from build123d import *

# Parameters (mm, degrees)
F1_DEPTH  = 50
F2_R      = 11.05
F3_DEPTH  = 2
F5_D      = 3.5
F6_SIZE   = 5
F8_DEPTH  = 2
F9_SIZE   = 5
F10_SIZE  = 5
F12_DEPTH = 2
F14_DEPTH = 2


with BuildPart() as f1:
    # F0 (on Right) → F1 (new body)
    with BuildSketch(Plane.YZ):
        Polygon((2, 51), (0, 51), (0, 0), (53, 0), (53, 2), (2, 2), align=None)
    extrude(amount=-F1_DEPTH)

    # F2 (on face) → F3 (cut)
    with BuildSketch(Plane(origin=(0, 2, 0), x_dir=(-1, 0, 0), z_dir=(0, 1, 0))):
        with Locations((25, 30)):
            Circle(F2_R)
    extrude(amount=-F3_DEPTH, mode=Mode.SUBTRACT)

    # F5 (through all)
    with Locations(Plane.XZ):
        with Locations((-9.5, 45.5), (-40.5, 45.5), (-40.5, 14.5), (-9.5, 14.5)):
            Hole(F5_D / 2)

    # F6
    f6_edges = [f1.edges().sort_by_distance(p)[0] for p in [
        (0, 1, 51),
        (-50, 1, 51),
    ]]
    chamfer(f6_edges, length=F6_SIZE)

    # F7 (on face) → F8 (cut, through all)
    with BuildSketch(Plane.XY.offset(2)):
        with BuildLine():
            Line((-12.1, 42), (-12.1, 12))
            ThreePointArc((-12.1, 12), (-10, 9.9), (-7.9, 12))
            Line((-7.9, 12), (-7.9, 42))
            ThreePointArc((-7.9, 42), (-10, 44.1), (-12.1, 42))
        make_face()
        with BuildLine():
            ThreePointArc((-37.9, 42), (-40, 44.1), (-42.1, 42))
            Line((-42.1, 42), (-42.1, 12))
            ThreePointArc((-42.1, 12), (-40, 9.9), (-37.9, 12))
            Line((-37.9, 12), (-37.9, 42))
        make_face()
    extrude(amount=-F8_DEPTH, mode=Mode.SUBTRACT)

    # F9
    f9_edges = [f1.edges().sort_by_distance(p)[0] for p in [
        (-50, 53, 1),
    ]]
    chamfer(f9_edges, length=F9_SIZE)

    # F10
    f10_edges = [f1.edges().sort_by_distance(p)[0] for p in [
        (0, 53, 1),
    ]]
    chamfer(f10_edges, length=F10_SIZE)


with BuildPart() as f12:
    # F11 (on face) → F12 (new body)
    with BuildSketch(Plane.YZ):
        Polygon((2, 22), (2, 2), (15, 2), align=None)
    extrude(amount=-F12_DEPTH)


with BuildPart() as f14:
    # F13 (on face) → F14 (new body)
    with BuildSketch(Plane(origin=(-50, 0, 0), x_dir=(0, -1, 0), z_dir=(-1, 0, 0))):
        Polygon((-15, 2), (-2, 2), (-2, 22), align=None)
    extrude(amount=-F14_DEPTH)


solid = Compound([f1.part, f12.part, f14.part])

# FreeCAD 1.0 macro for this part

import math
import FreeCAD as App
import Part
import Sketcher


def edges_at(feature, points):
    """Names of the edges that pass closest to the given points."""
    edges = feature.Shape.Edges
    near = lambda p: min(range(len(edges)), key=lambda i: edges[i].distToShape(Part.Vertex(*p))[0])
    return sorted({f"Edge{near(p) + 1}" for p in points})

doc = App.newDocument("Part")
body = doc.addObject("PartDesign::Body", "Body")

sketch1 = body.newObject("Sketcher::SketchObject", "Sketch")
sketch1.AttachmentSupport = (doc.getObject("YZ_Plane"), [""])
sketch1.MapMode = "FlatFace"
sketch1.addGeometry(Part.LineSegment(App.Vector(2, 51, 0), App.Vector(0, 51, 0)), False)
sketch1.addGeometry(Part.LineSegment(App.Vector(0, 51, 0), App.Vector(0, 0, 0)), False)
sketch1.addGeometry(Part.LineSegment(App.Vector(0, 0, 0), App.Vector(53, 0, 0)), False)
sketch1.addGeometry(Part.LineSegment(App.Vector(53, 0, 0), App.Vector(53, 2, 0)), False)
sketch1.addGeometry(Part.LineSegment(App.Vector(53, 2, 0), App.Vector(2, 2, 0)), False)
sketch1.addGeometry(Part.LineSegment(App.Vector(2, 2, 0), App.Vector(2, 51, 0)), False)
sketch1.addConstraint(Sketcher.Constraint("Coincident", 0, 2, 1, 1))
sketch1.addConstraint(Sketcher.Constraint("Coincident", 1, 2, 2, 1))
sketch1.addConstraint(Sketcher.Constraint("Coincident", 2, 2, 3, 1))
sketch1.addConstraint(Sketcher.Constraint("Coincident", 3, 2, 4, 1))
sketch1.addConstraint(Sketcher.Constraint("Coincident", 4, 2, 5, 1))
sketch1.addConstraint(Sketcher.Constraint("Coincident", 5, 2, 0, 1))
sketch1.addConstraint(Sketcher.Constraint("Horizontal", 0))
sketch1.addConstraint(Sketcher.Constraint("Vertical", 1))
sketch1.addConstraint(Sketcher.Constraint("Horizontal", 2))
sketch1.addConstraint(Sketcher.Constraint("Vertical", 3))
sketch1.addConstraint(Sketcher.Constraint("Horizontal", 4))
sketch1.addConstraint(Sketcher.Constraint("Vertical", 5))
sketch1.addConstraint(Sketcher.Constraint("Coincident", 1, 2, -1, 1))
sketch1.addConstraint(Sketcher.Constraint("Equal", 4, 1))
sketch1.addConstraint(Sketcher.Constraint("Equal", 0, 3))
sketch1.addConstraint(Sketcher.Constraint("DistanceX", 0, 2, 0, 1, 2.0))
sketch1.addConstraint(Sketcher.Constraint("DistanceX", 2, 1, 2, 2, 53.0))
pad1 = body.newObject("PartDesign::Pad", "Pad")
pad1.Profile = sketch1
pad1.Length = 50
pad1.Reversed = True

sketch2 = body.newObject("Sketcher::SketchObject", "Sketch001")
sketch2.AttachmentSupport = (doc.getObject("XZ_Plane"), [""])
sketch2.MapMode = "FlatFace"
sketch2.AttachmentOffset = App.Placement(App.Vector(0, 0, -2), App.Rotation())
sketch2.addGeometry(Part.Circle(App.Vector(-25, 30, 0), App.Vector(0, 0, 1), 11), False)
sketch2.addConstraint(Sketcher.Constraint("Diameter", 0, 22.1))
sketch2.addConstraint(Sketcher.Constraint("DistanceX", 0, 3, -1, 1, 25.0))
sketch2.addConstraint(Sketcher.Constraint("DistanceY", -1, 1, 0, 3, 30.0))
pocket1 = body.newObject("PartDesign::Pocket", "Pocket")
pocket1.Profile = sketch2
pocket1.Length = 2
pocket1.Reversed = True

sketch3 = body.newObject("Sketcher::SketchObject", "Sketch002")
sketch3.AttachmentSupport = (doc.getObject("XZ_Plane"), [""])
sketch3.MapMode = "FlatFace"
sketch3.addGeometry(Part.Circle(App.Vector(-9.5, 45.5, 0), App.Vector(0, 0, 1), 1.8), False)
sketch3.addGeometry(Part.Circle(App.Vector(-40.5, 45.5, 0), App.Vector(0, 0, 1), 1.8), False)
sketch3.addGeometry(Part.Circle(App.Vector(-40.5, 14.5, 0), App.Vector(0, 0, 1), 1.8), False)
sketch3.addGeometry(Part.Circle(App.Vector(-9.5, 14.5, 0), App.Vector(0, 0, 1), 1.8), False)
sketch3.addConstraint(Sketcher.Constraint("Equal", 0, 1))
sketch3.addConstraint(Sketcher.Constraint("Equal", 1, 2))
sketch3.addConstraint(Sketcher.Constraint("Equal", 2, 3))
sketch3.addConstraint(Sketcher.Constraint("Horizontal", 0, 3, 1, 3))
sketch3.addConstraint(Sketcher.Constraint("Horizontal", 2, 3, 3, 3))
sketch3.addConstraint(Sketcher.Constraint("Vertical", 1, 3, 2, 3))
sketch3.addConstraint(Sketcher.Constraint("Vertical", 0, 3, 3, 3))
sketch3.addConstraint(Sketcher.Constraint("Diameter", 0, 3.5))
sketch3.addConstraint(Sketcher.Constraint("DistanceX", 1, 3, 0, 3, 31.0))
sketch3.addConstraint(Sketcher.Constraint("DistanceY", 2, 3, 1, 3, 31.0))
sketch3.addConstraint(Sketcher.Constraint("DistanceX", 0, 3, -1, 1, 9.5))
sketch3.addConstraint(Sketcher.Constraint("DistanceY", -1, 1, 0, 3, 45.5))
doc.recompute()
hole = body.newObject("PartDesign::Hole", "Hole")
hole.Profile = sketch3
hole.ThreadType = "None"
hole.Diameter = 3.5
hole.DepthType = "ThroughAll"
doc.recompute()

chamfer = body.newObject("PartDesign::Chamfer", "Chamfer")
chamfer.Base = (hole, edges_at(hole, [(0, 1, 51), (-50, 1, 51)]))
chamfer.Size = 5

sketch4 = body.newObject("Sketcher::SketchObject", "Sketch003")
sketch4.AttachmentSupport = (doc.getObject("XY_Plane"), [""])
sketch4.MapMode = "FlatFace"
sketch4.AttachmentOffset = App.Placement(App.Vector(0, 0, 2), App.Rotation())
sketch4.addGeometry(Part.LineSegment(App.Vector(-12.1, 42, 0), App.Vector(-12.1, 12, 0)), False)
sketch4.addGeometry(Part.ArcOfCircle(Part.Circle(App.Vector(-10, 12, 0), App.Vector(0, 0, 1), 2.1), math.radians(180), math.radians(360)), False)
sketch4.addGeometry(Part.LineSegment(App.Vector(-7.9, 12, 0), App.Vector(-7.9, 42, 0)), False)
sketch4.addGeometry(Part.ArcOfCircle(Part.Circle(App.Vector(-10, 42, 0), App.Vector(0, 0, 1), 2.1), math.radians(0), math.radians(180)), False)
sketch4.addGeometry(Part.ArcOfCircle(Part.Circle(App.Vector(-40, 42, 0), App.Vector(0, 0, 1), 2.1), math.radians(0), math.radians(180)), False)
sketch4.addGeometry(Part.LineSegment(App.Vector(-42.1, 42, 0), App.Vector(-42.1, 12, 0)), False)
sketch4.addGeometry(Part.ArcOfCircle(Part.Circle(App.Vector(-40, 12, 0), App.Vector(0, 0, 1), 2.1), math.radians(180), math.radians(360)), False)
sketch4.addGeometry(Part.LineSegment(App.Vector(-37.9, 12, 0), App.Vector(-37.9, 42, 0)), False)
sketch4.addConstraint(Sketcher.Constraint("Tangent", 0, 2, 1, 1))
sketch4.addConstraint(Sketcher.Constraint("Tangent", 1, 2, 2, 1))
sketch4.addConstraint(Sketcher.Constraint("Tangent", 2, 2, 3, 1))
sketch4.addConstraint(Sketcher.Constraint("Tangent", 3, 2, 0, 1))
sketch4.addConstraint(Sketcher.Constraint("Tangent", 4, 2, 5, 1))
sketch4.addConstraint(Sketcher.Constraint("Tangent", 5, 2, 6, 1))
sketch4.addConstraint(Sketcher.Constraint("Tangent", 6, 2, 7, 1))
sketch4.addConstraint(Sketcher.Constraint("Tangent", 7, 2, 4, 1))
sketch4.addConstraint(Sketcher.Constraint("Vertical", 0))
sketch4.addConstraint(Sketcher.Constraint("Vertical", 2))
sketch4.addConstraint(Sketcher.Constraint("Vertical", 5))
sketch4.addConstraint(Sketcher.Constraint("Vertical", 7))
sketch4.addConstraint(Sketcher.Constraint("Equal", 3, 4))
sketch4.addConstraint(Sketcher.Constraint("Horizontal", 3, 3, 4, 3))
sketch4.addConstraint(Sketcher.Constraint("Horizontal", 1, 3, 6, 3))
sketch4.addConstraint(Sketcher.Constraint("Radius", 1, 2.1))
sketch4.addConstraint(Sketcher.Constraint("DistanceY", 0, 2, 0, 1, 30.0))
sketch4.addConstraint(Sketcher.Constraint("DistanceX", 1, 3, -1, 1, 10.0))
sketch4.addConstraint(Sketcher.Constraint("DistanceY", -1, 1, 1, 3, 12.0))
sketch4.addConstraint(Sketcher.Constraint("DistanceX", 4, 3, -1, 1, 40.0))
pocket2 = body.newObject("PartDesign::Pocket", "Pocket001")
pocket2.Profile = sketch4
pocket2.Type = "ThroughAll"
doc.recompute()

chamfer2 = body.newObject("PartDesign::Chamfer", "Chamfer001")
chamfer2.Base = (pocket2, edges_at(pocket2, [(-50, 53, 1)]))
chamfer2.Size = 5
doc.recompute()

chamfer3 = body.newObject("PartDesign::Chamfer", "Chamfer002")
chamfer3.Base = (chamfer2, edges_at(chamfer2, [(0, 53, 1)]))
chamfer3.Size = 5
body2 = doc.addObject("PartDesign::Body", "Body001")

sketch5 = body2.newObject("Sketcher::SketchObject", "Sketch004")
sketch5.AttachmentSupport = (doc.getObject("YZ_Plane001"), [""])
sketch5.MapMode = "FlatFace"
sketch5.addGeometry(Part.LineSegment(App.Vector(2, 22, 0), App.Vector(2, 2, 0)), False)
sketch5.addGeometry(Part.LineSegment(App.Vector(2, 2, 0), App.Vector(15, 2, 0)), False)
sketch5.addGeometry(Part.LineSegment(App.Vector(15, 2, 0), App.Vector(2, 22, 0)), False)
sketch5.addConstraint(Sketcher.Constraint("Coincident", 0, 2, 1, 1))
sketch5.addConstraint(Sketcher.Constraint("Coincident", 1, 2, 2, 1))
sketch5.addConstraint(Sketcher.Constraint("Coincident", 2, 2, 0, 1))
sketch5.addConstraint(Sketcher.Constraint("Vertical", 0))
sketch5.addConstraint(Sketcher.Constraint("Horizontal", 1))
sketch5.addConstraint(Sketcher.Constraint("DistanceX", 1, 1, 1, 2, 13.0))
sketch5.addConstraint(Sketcher.Constraint("DistanceY", 0, 2, 0, 1, 20.0))
sketch5.addConstraint(Sketcher.Constraint("DistanceX", -1, 1, 0, 2, 2.0))
sketch5.addConstraint(Sketcher.Constraint("DistanceY", -1, 1, 0, 2, 2.0))
pad2 = body2.newObject("PartDesign::Pad", "Pad001")
pad2.Profile = sketch5
pad2.Length = 2
pad2.Reversed = True
body3 = doc.addObject("PartDesign::Body", "Body002")

sketch6 = body3.newObject("Sketcher::SketchObject", "Sketch005")
sketch6.AttachmentSupport = (doc.getObject("YZ_Plane002"), [""])
sketch6.MapMode = "FlatFace"
sketch6.AttachmentOffset = App.Placement(App.Vector(0, 0, -50), App.Rotation())
sketch6.addGeometry(Part.LineSegment(App.Vector(15, 2, 0), App.Vector(2, 2, 0)), False)
sketch6.addGeometry(Part.LineSegment(App.Vector(2, 2, 0), App.Vector(2, 22, 0)), False)
sketch6.addGeometry(Part.LineSegment(App.Vector(2, 22, 0), App.Vector(15, 2, 0)), False)
sketch6.addConstraint(Sketcher.Constraint("Coincident", 0, 2, 1, 1))
sketch6.addConstraint(Sketcher.Constraint("Coincident", 1, 2, 2, 1))
sketch6.addConstraint(Sketcher.Constraint("Coincident", 2, 2, 0, 1))
sketch6.addConstraint(Sketcher.Constraint("Horizontal", 0))
sketch6.addConstraint(Sketcher.Constraint("Vertical", 1))
sketch6.addConstraint(Sketcher.Constraint("DistanceX", 0, 2, 0, 1, 13.0))
sketch6.addConstraint(Sketcher.Constraint("DistanceY", 1, 1, 1, 2, 20.0))
sketch6.addConstraint(Sketcher.Constraint("DistanceX", -1, 1, 0, 2, 2.0))
sketch6.addConstraint(Sketcher.Constraint("DistanceY", -1, 1, 0, 2, 2.0))
pad3 = body3.newObject("PartDesign::Pad", "Pad002")
pad3.Profile = sketch6
pad3.Length = 2

doc.recompute()
